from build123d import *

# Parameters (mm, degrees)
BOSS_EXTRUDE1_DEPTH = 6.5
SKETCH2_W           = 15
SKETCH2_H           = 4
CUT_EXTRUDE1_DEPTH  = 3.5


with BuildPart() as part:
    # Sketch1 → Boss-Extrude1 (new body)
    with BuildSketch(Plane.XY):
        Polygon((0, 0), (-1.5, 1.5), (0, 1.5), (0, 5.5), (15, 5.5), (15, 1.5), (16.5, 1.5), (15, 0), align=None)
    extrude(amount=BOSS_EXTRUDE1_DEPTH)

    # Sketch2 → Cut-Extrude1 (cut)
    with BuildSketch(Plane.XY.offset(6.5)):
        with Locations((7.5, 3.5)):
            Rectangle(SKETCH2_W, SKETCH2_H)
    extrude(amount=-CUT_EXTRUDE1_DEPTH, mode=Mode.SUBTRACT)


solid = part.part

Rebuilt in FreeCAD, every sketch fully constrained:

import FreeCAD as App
import Part
import Sketcher

V = App.Vector


def add_polygon(sketch, points):
    """Adds a closed chain of lines whose ends are joined by coincident constraints."""
    first, n = sketch.GeometryCount, len(points)
    for a, b in zip(points, points[1:] + points[:1]):
        sketch.addGeometry(Part.LineSegment(App.Vector(*a, 0), App.Vector(*b, 0)), False)
    for i in range(n):
        sketch.addConstraint(Sketcher.Constraint("Coincident", first + i, 2, first + (i + 1) % n, 1))

doc = App.newDocument("Part")
body = doc.addObject("PartDesign::Body", "Body")

# Sketch on XY plane
sketch1 = body.newObject("Sketcher::SketchObject", "Sketch")
sketch1.AttachmentSupport = (doc.getObject("XY_Plane"), [""])
sketch1.MapMode = "FlatFace"
add_polygon(sketch1, [(-1.5, 1.5), (0, 0), (15, 0), (16.5, 1.5), (15, 1.5), (15, 5.5), (0, 5.5), (0, 1.5)])  # lines 0-7
sketch1.addConstraint(Sketcher.Constraint("Horizontal", 1))
sketch1.addConstraint(Sketcher.Constraint("Horizontal", 3))
sketch1.addConstraint(Sketcher.Constraint("Vertical", 4))
sketch1.addConstraint(Sketcher.Constraint("Horizontal", 5))
sketch1.addConstraint(Sketcher.Constraint("Vertical", 6))
sketch1.addConstraint(Sketcher.Constraint("Horizontal", 7))
sketch1.addConstraint(Sketcher.Constraint("Coincident", 0, 2, -1, 1))
sketch1.addConstraint(Sketcher.Constraint("PointOnObject", 5, 2, -2))
sketch1.addConstraint(Sketcher.Constraint("Perpendicular", 0, 2))
sketch1.addConstraint(Sketcher.Constraint("Horizontal", 3, 2, 6, 2))
sketch1.addConstraint(Sketcher.Constraint("Vertical", 1, 2, 3, 2))
sketch1.addConstraint(Sketcher.Constraint("Equal", 3, 7))
sketch1.addConstraint(Sketcher.Constraint("DistanceX", 1, 1, 1, 2, 15.0))
sketch1.addConstraint(Sketcher.Constraint("DistanceY", 4, 1, 4, 2, 4.0))
sketch1.addConstraint(Sketcher.Constraint("DistanceX", 3, 2, 3, 1, 1.5))
pad1 = body.newObject("PartDesign::Pad", "Pad")
pad1.Profile = sketch1
pad1.Length = 6.5

# Sketch on XY plane
sketch2 = body.newObject("Sketcher::SketchObject", "Sketch001")
sketch2.AttachmentSupport = (doc.getObject("XY_Plane"), [""])
sketch2.MapMode = "FlatFace"
sketch2.AttachmentOffset = App.Placement(V(0, 0, 6.5), App.Rotation())
add_polygon(sketch2, [(0, 5.5), (0, 1.5), (15, 1.5), (15, 5.5)])  # lines 0-3
sketch2.addConstraint(Sketcher.Constraint("Vertical", 0))
sketch2.addConstraint(Sketcher.Constraint("Horizontal", 1))
sketch2.addConstraint(Sketcher.Constraint("Vertical", 2))
sketch2.addConstraint(Sketcher.Constraint("Horizontal", 3))
sketch2.addConstraint(Sketcher.Constraint("PointOnObject", 0, 2, -2))
sketch2.addConstraint(Sketcher.Constraint("DistanceX", 1, 1, 1, 2, 15.0))
sketch2.addConstraint(Sketcher.Constraint("DistanceY", 0, 2, 0, 1, 4.0))
sketch2.addConstraint(Sketcher.Constraint("DistanceY", -1, 1, 0, 2, 1.5))
pocket1 = body.newObject("PartDesign::Pocket", "Pocket")
pocket1.Profile = sketch2
pocket1.Length = 3.5

doc.recompute()
